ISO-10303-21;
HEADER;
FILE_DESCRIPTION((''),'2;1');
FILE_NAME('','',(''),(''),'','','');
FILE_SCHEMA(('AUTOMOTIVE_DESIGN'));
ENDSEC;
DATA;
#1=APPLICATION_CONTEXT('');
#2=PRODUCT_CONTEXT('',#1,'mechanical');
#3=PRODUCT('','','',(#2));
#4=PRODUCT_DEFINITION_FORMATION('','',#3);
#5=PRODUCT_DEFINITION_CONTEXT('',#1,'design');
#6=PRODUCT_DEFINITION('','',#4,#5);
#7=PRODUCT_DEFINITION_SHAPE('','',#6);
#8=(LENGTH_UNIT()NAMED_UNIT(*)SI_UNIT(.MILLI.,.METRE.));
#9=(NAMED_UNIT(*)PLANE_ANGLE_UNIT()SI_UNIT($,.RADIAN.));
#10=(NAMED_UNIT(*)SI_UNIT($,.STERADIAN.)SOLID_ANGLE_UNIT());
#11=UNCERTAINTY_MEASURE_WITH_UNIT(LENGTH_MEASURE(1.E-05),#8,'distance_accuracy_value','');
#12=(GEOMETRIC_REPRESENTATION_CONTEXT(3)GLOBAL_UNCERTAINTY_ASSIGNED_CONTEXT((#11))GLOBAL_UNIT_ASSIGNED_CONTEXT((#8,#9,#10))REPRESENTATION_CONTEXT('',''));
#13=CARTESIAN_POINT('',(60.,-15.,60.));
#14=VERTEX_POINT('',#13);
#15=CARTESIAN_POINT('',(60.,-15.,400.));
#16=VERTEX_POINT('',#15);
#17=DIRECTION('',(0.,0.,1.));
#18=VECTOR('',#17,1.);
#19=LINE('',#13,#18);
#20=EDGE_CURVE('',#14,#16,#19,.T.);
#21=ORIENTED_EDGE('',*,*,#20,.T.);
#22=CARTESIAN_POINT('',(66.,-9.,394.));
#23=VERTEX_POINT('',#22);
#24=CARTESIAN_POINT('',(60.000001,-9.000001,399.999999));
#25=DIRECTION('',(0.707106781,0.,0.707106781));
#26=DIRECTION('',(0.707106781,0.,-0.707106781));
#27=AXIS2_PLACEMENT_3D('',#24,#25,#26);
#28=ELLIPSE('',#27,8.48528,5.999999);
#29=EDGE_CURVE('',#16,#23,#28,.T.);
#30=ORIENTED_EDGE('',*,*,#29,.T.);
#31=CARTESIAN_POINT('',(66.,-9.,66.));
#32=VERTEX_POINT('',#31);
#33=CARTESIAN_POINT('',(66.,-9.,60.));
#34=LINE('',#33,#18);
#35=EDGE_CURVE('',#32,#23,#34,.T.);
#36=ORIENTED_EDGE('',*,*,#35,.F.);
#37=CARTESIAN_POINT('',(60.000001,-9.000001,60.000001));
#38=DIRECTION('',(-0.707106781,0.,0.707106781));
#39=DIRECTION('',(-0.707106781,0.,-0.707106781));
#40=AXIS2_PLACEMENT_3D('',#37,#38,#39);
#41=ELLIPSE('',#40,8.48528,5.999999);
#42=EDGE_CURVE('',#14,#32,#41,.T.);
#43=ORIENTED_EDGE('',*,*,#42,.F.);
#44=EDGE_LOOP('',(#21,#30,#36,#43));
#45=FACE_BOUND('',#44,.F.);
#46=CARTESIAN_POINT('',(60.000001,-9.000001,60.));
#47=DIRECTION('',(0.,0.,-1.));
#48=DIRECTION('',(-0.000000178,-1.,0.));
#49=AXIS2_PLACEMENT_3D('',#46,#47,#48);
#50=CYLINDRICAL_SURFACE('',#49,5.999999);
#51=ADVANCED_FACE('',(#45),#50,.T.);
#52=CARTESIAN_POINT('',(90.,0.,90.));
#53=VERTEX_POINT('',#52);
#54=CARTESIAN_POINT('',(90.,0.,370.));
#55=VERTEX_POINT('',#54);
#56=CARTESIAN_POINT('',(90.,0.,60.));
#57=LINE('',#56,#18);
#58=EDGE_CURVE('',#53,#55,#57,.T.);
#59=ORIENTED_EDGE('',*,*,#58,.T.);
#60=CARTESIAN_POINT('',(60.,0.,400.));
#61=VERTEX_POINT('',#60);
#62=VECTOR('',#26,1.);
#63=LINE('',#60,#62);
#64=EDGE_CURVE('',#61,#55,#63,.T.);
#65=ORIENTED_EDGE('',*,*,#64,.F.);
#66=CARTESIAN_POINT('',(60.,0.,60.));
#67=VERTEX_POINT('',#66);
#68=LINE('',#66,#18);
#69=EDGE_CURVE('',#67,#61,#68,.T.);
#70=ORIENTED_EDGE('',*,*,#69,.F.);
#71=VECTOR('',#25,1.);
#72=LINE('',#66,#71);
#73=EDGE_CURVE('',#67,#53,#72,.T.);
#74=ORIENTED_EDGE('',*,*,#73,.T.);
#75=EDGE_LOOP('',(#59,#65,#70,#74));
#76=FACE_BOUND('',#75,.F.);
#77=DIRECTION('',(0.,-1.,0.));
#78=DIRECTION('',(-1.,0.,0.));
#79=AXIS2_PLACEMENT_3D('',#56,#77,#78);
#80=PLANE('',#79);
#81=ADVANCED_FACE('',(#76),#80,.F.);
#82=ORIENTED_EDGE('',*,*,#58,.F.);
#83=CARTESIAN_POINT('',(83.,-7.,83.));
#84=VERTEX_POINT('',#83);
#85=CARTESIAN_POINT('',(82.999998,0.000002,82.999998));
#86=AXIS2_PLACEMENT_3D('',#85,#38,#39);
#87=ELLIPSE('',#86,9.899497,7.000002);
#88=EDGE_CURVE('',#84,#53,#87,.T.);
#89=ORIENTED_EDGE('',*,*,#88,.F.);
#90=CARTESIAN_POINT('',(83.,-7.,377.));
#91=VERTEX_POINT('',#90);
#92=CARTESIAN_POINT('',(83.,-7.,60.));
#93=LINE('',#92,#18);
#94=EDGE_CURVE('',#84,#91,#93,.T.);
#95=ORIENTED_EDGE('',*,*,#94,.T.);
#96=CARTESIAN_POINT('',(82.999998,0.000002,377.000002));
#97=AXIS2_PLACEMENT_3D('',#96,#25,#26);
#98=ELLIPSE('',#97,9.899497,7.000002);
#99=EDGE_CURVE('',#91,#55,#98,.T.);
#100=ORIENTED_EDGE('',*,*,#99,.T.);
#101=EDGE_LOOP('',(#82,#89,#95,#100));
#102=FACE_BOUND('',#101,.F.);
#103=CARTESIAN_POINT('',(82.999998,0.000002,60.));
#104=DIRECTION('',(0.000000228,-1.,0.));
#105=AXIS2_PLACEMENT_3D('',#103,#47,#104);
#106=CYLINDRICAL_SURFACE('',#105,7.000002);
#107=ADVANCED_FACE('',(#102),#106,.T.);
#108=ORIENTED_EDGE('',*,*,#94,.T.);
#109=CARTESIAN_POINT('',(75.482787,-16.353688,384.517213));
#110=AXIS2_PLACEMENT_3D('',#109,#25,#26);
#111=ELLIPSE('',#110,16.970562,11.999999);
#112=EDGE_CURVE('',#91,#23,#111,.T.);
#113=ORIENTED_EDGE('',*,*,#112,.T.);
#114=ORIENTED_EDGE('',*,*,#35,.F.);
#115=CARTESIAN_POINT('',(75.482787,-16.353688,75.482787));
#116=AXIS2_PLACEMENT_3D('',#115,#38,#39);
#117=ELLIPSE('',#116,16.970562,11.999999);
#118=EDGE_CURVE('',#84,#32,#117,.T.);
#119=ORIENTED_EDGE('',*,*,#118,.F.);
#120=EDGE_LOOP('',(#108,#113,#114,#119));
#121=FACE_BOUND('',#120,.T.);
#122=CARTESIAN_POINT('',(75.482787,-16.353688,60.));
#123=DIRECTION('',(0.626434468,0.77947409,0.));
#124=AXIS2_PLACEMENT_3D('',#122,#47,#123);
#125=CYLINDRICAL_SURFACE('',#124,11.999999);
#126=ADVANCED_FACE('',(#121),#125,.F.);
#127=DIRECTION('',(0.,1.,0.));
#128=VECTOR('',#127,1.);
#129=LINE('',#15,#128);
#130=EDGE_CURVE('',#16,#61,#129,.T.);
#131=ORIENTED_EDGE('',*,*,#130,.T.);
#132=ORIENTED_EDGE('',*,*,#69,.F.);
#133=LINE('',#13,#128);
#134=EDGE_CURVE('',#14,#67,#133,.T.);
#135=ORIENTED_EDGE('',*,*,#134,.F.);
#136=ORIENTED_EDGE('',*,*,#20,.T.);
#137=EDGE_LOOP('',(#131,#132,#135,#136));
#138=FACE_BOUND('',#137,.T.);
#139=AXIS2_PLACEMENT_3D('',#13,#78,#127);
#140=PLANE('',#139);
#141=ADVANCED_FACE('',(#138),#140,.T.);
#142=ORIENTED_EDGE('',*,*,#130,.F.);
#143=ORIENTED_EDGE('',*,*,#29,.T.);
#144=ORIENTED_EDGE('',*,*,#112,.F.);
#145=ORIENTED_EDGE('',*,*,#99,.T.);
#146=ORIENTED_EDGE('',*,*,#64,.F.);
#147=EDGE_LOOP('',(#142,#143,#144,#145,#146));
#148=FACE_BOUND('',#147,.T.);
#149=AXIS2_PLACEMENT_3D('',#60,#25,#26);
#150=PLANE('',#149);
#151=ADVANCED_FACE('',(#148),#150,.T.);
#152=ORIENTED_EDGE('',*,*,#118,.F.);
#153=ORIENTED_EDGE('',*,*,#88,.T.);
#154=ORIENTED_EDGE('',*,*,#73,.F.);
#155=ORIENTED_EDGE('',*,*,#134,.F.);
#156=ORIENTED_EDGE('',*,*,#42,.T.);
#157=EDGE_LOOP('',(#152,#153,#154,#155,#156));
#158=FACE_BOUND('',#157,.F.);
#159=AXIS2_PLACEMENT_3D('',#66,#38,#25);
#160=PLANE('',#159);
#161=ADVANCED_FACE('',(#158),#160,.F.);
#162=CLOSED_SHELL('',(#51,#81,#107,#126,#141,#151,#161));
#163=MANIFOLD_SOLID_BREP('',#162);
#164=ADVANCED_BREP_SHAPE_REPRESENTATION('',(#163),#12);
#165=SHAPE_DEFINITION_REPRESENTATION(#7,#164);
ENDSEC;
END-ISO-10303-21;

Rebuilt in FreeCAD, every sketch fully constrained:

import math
import FreeCAD as App
import Part
import Sketcher
Q = App.Units.Quantity


def add_polygon(sketch, points):
    """Adds a closed chain of lines whose ends are joined by coincident constraints."""
    first, n = sketch.GeometryCount, len(points)
    for a, b in zip(points, points[1:] + points[:1]):
        sketch.addGeometry(Part.LineSegment(App.Vector(*a, 0), App.Vector(*b, 0)), False)
    for i in range(n):
        sketch.addConstraint(Sketcher.Constraint("Coincident", first + i, 2, first + (i + 1) % n, 1))

doc = App.newDocument("Part")
body = doc.addObject("PartDesign::Body", "Body")

# Sketch on XZ plane
sketch1 = body.newObject("Sketcher::SketchObject", "Sketch")
sketch1.AttachmentSupport = (doc.getObject("XZ_Plane"), [""])
sketch1.MapMode = "FlatFace"
add_polygon(sketch1, [(60, 400), (100, 360), (100, 400)])  # lines 0-2
sketch1.addConstraint(Sketcher.Constraint("Vertical", 1))
sketch1.addConstraint(Sketcher.Constraint("Horizontal", 2))
sketch1.addConstraint(Sketcher.Constraint("Equal", 2, 1))
sketch1.addConstraint(Sketcher.Constraint("DistanceX", 2, 2, 2, 1, Q("40 mm")))
sketch1.addConstraint(Sketcher.Constraint("DistanceX", -1, 1, 0, 2, Q("100 mm")))
sketch1.addConstraint(Sketcher.Constraint("DistanceY", -1, 1, 0, 2, Q("360 mm")))
pad1 = body.newObject("PartDesign::Pad", "Pad")
pad1.Profile = sketch1
pad1.Length = 40
body2 = doc.addObject("PartDesign::Body", "Body001")

# Sketch on XZ plane
sketch2 = body2.newObject("Sketcher::SketchObject", "Sketch001")
sketch2.AttachmentSupport = (doc.getObject("XZ_Plane001"), [""])
sketch2.MapMode = "FlatFace"
add_polygon(sketch2, [(100, 100), (60, 60), (100, 60)])  # lines 0-2
sketch2.addConstraint(Sketcher.Constraint("Horizontal", 1))
sketch2.addConstraint(Sketcher.Constraint("Vertical", 2))
sketch2.addConstraint(Sketcher.Constraint("Equal", 1, 2))
sketch2.addConstraint(Sketcher.Constraint("DistanceX", 1, 1, 1, 2, Q("40 mm")))
sketch2.addConstraint(Sketcher.Constraint("DistanceX", -1, 1, 0, 2, Q("60 mm")))
sketch2.addConstraint(Sketcher.Constraint("DistanceY", -1, 1, 0, 2, Q("60 mm")))
pad2 = body2.newObject("PartDesign::Pad", "Pad001")
pad2.Profile = sketch2
pad2.Length = 40
body3 = doc.addObject("PartDesign::Body", "Body002")

# Sketch on XY plane
sketch3 = body3.newObject("Sketcher::SketchObject", "Sketch002")
sketch3.AttachmentSupport = (doc.getObject("XY_Plane002"), [""])
sketch3.MapMode = "FlatFace"
sketch3.AttachmentOffset = App.Placement(App.Vector(0, 0, 60), App.Rotation())
sketch3.addGeometry(Part.LineSegment(App.Vector(90, 0, 0), App.Vector(60, 0, 0)), False)
sketch3.addGeometry(Part.LineSegment(App.Vector(60, 0, 0), App.Vector(60, -15, 0)), False)
sketch3.addGeometry(Part.ArcOfCircle(Part.Circle(App.Vector(60, -9, 0), App.Vector(0, 0, 1), 6), math.radians(-90), math.radians(0)), False)
sketch3.addGeometry(Part.ArcOfCircle(Part.Circle(App.Vector(75, -16, 0), App.Vector(0, 0, 1), 12), math.radians(51), math.radians(142)), False)
sketch3.addGeometry(Part.ArcOfCircle(Part.Circle(App.Vector(83, 0, 0), App.Vector(0, 0, 1), 7), math.radians(-90), math.radians(0)), False)
sketch3.addConstraint(Sketcher.Constraint("Coincident", 0, 2, 1, 1))
sketch3.addConstraint(Sketcher.Constraint("Coincident", 1, 2, 2, 1))
sketch3.addConstraint(Sketcher.Constraint("Coincident", 2, 2, 3, 2))
sketch3.addConstraint(Sketcher.Constraint("Coincident", 3, 1, 4, 1))
sketch3.addConstraint(Sketcher.Constraint("Coincident", 4, 2, 0, 1))
sketch3.addConstraint(Sketcher.Constraint("Horizontal", 0))
sketch3.addConstraint(Sketcher.Constraint("Vertical", 1))
sketch3.addConstraint(Sketcher.Constraint("PointOnObject", 4, 3, -1))
sketch3.addConstraint(Sketcher.Constraint("PointOnObject", 0, 2, -1))
sketch3.addConstraint(Sketcher.Constraint("Vertical", 2, 3, 0, 2))
sketch3.addConstraint(Sketcher.Constraint("Vertical", 4, 3, 3, 1))
sketch3.addConstraint(Sketcher.Constraint("Radius", 2, Q("5.999999 mm")))
sketch3.addConstraint(Sketcher.Constraint("Radius", 3, Q("11.999999 mm")))
sketch3.addConstraint(Sketcher.Constraint("Radius", 4, Q("7.000002 mm")))
sketch3.addConstraint(Sketcher.Constraint("DistanceX", 0, 2, 0, 1, Q("30 mm")))
sketch3.addConstraint(Sketcher.Constraint("DistanceY", 1, 2, 1, 1, Q("15 mm")))
sketch3.addConstraint(Sketcher.Constraint("DistanceX", -1, 1, 2, 3, Q("60.000001 mm")))
sketch3.addConstraint(Sketcher.Constraint("DistanceY", 2, 2, -1, 1, Q("9 mm")))
pad3 = body3.newObject("PartDesign::Pad", "Pad002")
pad3.Profile = sketch3
pad3.Length = 340
doc.recompute()

boolean = body3.newObject("PartDesign::Boolean", "Boolean")
boolean.Type = "Cut"
boolean.addObjects([body2])
doc.recompute()

boolean2 = body3.newObject("PartDesign::Boolean", "Boolean001")
boolean2.Type = "Cut"
boolean2.addObjects([body])

doc.recompute()
